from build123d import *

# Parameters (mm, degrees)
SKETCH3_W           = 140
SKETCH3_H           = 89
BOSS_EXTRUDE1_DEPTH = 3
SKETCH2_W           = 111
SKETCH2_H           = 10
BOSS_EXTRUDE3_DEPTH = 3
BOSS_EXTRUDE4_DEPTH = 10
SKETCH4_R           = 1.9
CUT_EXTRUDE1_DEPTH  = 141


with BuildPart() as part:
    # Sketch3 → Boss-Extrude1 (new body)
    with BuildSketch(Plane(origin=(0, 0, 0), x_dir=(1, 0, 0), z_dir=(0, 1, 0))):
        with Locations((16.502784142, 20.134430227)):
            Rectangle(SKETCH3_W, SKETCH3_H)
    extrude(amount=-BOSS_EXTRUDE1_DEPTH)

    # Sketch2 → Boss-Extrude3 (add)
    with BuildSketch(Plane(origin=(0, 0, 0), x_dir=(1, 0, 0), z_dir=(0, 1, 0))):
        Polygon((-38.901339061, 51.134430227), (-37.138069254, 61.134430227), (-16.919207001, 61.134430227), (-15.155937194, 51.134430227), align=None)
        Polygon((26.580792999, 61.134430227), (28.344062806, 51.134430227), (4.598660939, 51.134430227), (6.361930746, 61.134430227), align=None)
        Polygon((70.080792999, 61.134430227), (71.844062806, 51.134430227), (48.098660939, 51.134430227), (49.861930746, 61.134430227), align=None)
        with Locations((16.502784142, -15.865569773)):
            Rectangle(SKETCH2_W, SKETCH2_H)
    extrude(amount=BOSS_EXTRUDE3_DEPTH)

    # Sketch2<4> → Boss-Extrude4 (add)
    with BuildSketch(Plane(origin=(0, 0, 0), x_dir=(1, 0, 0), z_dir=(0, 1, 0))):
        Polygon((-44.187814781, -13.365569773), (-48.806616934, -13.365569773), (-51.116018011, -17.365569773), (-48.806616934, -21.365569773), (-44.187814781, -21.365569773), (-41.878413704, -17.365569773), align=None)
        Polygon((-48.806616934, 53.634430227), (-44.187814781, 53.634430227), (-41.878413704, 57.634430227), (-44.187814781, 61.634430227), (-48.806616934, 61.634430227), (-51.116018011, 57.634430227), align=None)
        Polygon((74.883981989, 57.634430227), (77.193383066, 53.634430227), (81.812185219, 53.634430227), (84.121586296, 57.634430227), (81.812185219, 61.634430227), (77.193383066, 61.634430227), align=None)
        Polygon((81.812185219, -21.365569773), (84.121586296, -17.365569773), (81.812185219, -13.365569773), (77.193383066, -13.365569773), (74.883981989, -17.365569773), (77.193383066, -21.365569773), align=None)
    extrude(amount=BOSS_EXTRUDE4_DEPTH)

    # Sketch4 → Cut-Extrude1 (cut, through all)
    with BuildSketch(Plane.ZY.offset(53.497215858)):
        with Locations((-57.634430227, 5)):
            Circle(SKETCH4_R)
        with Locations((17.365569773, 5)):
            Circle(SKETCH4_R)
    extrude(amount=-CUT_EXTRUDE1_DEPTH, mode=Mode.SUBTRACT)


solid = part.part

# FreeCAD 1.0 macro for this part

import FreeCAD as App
import Part
import Sketcher

V = App.Vector
Q = App.Units.Quantity

doc = App.newDocument("Part")
params = doc.addObject("Spreadsheet::Sheet", "Params")
for row, (alias, value) in enumerate([
    ("sketch1_width", "140 mm"),
    ("sketch1_height", "89 mm"),
    ("pad1_length", "3 mm"),
    ("sketch2_width", "111 mm"),
    ("sketch2_height", "10 mm"),
    ("pad2_length", "3 mm"),
    ("pad3_length", "10 mm"),
    ("sketch4_diameter", "3.8 mm"),
], start=1):
    params.set(f"A{row}", alias)
    params.set(f"B{row}", "=" + value)
    params.setAlias(f"B{row}", alias)

body = doc.addObject("PartDesign::Body", "Body")

# Sketch on XZ plane
sketch1 = body.newObject("Sketcher::SketchObject", "Sketch")
sketch1.AttachmentSupport = (doc.getObject("XZ_Plane"), [""])
sketch1.MapMode = "FlatFace"
sketch1.addGeometry([
    Part.LineSegment(V(-53, -65, 0), V(-53, 24, 0)),
    Part.LineSegment(V(-53, 24, 0), V(87, 24, 0)),
    Part.LineSegment(V(87, 24, 0), V(87, -65, 0)),
    Part.LineSegment(V(87, -65, 0), V(-53, -65, 0)),
], False)
sketch1.addConstraint([
    Sketcher.Constraint("Coincident", 0, 2, 1, 1),
    Sketcher.Constraint("Coincident", 1, 2, 2, 1),
    Sketcher.Constraint("Coincident", 2, 2, 3, 1),
    Sketcher.Constraint("Coincident", 3, 2, 0, 1),
    Sketcher.Constraint("Vertical", 0),
    Sketcher.Constraint("Horizontal", 1),
    Sketcher.Constraint("Vertical", 2),
    Sketcher.Constraint("Horizontal", 3),
    Sketcher.Constraint("DistanceX", 1, 1, 1, 2, Q("140 mm")),
    Sketcher.Constraint("DistanceY", 0, 1, 0, 2, Q("89 mm")),
    Sketcher.Constraint("DistanceY", -1, 1, 0, 2, Q("24.36557 mm")),
    Sketcher.Constraint("DistanceX", 0, 2, -1, 1, Q("53.497216 mm")),
])
sketch1.setExpression("Constraints[8]", "Params.sketch1_width")
sketch1.setExpression("Constraints[9]", "Params.sketch1_height")
pad1 = body.newObject("PartDesign::Pad", "Pad")
pad1.Profile = sketch1
pad1.setExpression("Length", "Params.pad1_length")

# Sketch on XZ plane
sketch2 = body.newObject("Sketcher::SketchObject", "Sketch001")
sketch2.AttachmentSupport = (doc.getObject("XZ_Plane"), [""])
sketch2.MapMode = "FlatFace"
sketch2.addGeometry([
    Part.LineSegment(V(-37, -61, 0), V(-39, -51, 0)),  # 0
    Part.LineSegment(V(-39, -51, 0), V(-15, -51, 0)),  # 1
    Part.LineSegment(V(-15, -51, 0), V(-17, -61, 0)),  # 2
    Part.LineSegment(V(-17, -61, 0), V(-37, -61, 0)),  # 3
    Part.LineSegment(V(28, -51, 0), V(27, -61, 0)),  # 4
    Part.LineSegment(V(27, -61, 0), V(6, -61, 0)),  # 5
    Part.LineSegment(V(6, -61, 0), V(5, -51, 0)),  # 6
    Part.LineSegment(V(5, -51, 0), V(28, -51, 0)),  # 7
    Part.LineSegment(V(72, -51, 0), V(70, -61, 0)),  # 8
    Part.LineSegment(V(70, -61, 0), V(50, -61, 0)),  # 9
    Part.LineSegment(V(50, -61, 0), V(48, -51, 0)),  # 10
    Part.LineSegment(V(48, -51, 0), V(72, -51, 0)),  # 11
    Part.LineSegment(V(-39, 11, 0), V(-39, 21, 0)),  # 12
    Part.LineSegment(V(-39, 21, 0), V(72, 21, 0)),  # 13
    Part.LineSegment(V(72, 21, 0), V(72, 11, 0)),  # 14
    Part.LineSegment(V(72, 11, 0), V(-39, 11, 0)),  # 15
], False)
sketch2.addConstraint([
    Sketcher.Constraint("Coincident", 0, 2, 1, 1),
    Sketcher.Constraint("Coincident", 1, 2, 2, 1),
    Sketcher.Constraint("Coincident", 2, 2, 3, 1),
    Sketcher.Constraint("Coincident", 3, 2, 0, 1),
    Sketcher.Constraint("Coincident", 4, 2, 5, 1),
    Sketcher.Constraint("Coincident", 5, 2, 6, 1),
    Sketcher.Constraint("Coincident", 6, 2, 7, 1),
    Sketcher.Constraint("Coincident", 7, 2, 4, 1),
    Sketcher.Constraint("Coincident", 8, 2, 9, 1),
    Sketcher.Constraint("Coincident", 9, 2, 10, 1),
    Sketcher.Constraint("Coincident", 10, 2, 11, 1),
    Sketcher.Constraint("Coincident", 11, 2, 8, 1),
    Sketcher.Constraint("Coincident", 12, 2, 13, 1),
    Sketcher.Constraint("Coincident", 13, 2, 14, 1),
    Sketcher.Constraint("Coincident", 14, 2, 15, 1),
    Sketcher.Constraint("Coincident", 15, 2, 12, 1),
    Sketcher.Constraint("Horizontal", 1),
    Sketcher.Constraint("Horizontal", 3),
    Sketcher.Constraint("Horizontal", 5),
    Sketcher.Constraint("Horizontal", 7),
    Sketcher.Constraint("Horizontal", 9),
    Sketcher.Constraint("Horizontal", 11),
    Sketcher.Constraint("Vertical", 12),
    Sketcher.Constraint("Horizontal", 13),
    Sketcher.Constraint("Vertical", 14),
    Sketcher.Constraint("Horizontal", 15),
    Sketcher.Constraint("Parallel", 2, 4),
    Sketcher.Constraint("Parallel", 0, 6),
    Sketcher.Constraint("Parallel", 4, 8),
    Sketcher.Constraint("Parallel", 6, 10),
    Sketcher.Constraint("Horizontal", 3, 2, 4, 2),
    Sketcher.Constraint("Horizontal", 1, 2, 6, 2),
    Sketcher.Constraint("Horizontal", 5, 2, 8, 2),
    Sketcher.Constraint("Horizontal", 7, 2, 10, 2),
    Sketcher.Constraint("Equal", 3, 5),
    Sketcher.Constraint("Equal", 5, 9),
    Sketcher.Constraint("Equal", 0, 2),
    Sketcher.Constraint("DistanceX", 13, 1, 13, 2, Q("111 mm")),
    Sketcher.Constraint("DistanceY", 12, 1, 12, 2, Q("10 mm")),
    Sketcher.Constraint("Angle", 0, Q("100 deg")),
    Sketcher.Constraint("DistanceY", 2, 2, 1, 2, Q("10 mm")),
    Sketcher.Constraint("DistanceY", 0, 2, 12, 2, Q("72 mm")),
    Sketcher.Constraint("DistanceX", 2, 2, 4, 2, Q("43.5 mm")),
    Sketcher.Constraint("DistanceX", 4, 2, 8, 2, Q("43.5 mm")),
    Sketcher.Constraint("DistanceX", 1, 1, 1, 2, Q("23.745402 mm")),
    Sketcher.Constraint("DistanceX", 0, 2, -1, 1, Q("38.901339 mm")),
    Sketcher.Constraint("DistanceY", 0, 2, -1, 1, Q("51.13443 mm")),
    Sketcher.Constraint("DistanceX", 12, 2, 1, 2, Q("23.841279 mm")),
])
sketch2.setExpression("Constraints[37]", "Params.sketch2_width")
sketch2.setExpression("Constraints[38]", "Params.sketch2_height")
pad2 = body.newObject("PartDesign::Pad", "Pad001")
pad2.Profile = sketch2
pad2.setExpression("Length", "Params.pad2_length")
pad2.Reversed = True

# Sketch on XZ plane
sketch3 = body.newObject("Sketcher::SketchObject", "Sketch002")
sketch3.AttachmentSupport = (doc.getObject("XZ_Plane"), [""])
sketch3.MapMode = "FlatFace"
sketch3.addGeometry([
    Part.LineSegment(V(-44.2, 13.4, 0), V(-48.8, 13.4, 0)),  # 0
    Part.LineSegment(V(-48.8, 13.4, 0), V(-51.1, 17.4, 0)),  # 1
    Part.LineSegment(V(-51.1, 17.4, 0), V(-48.8, 21.4, 0)),  # 2
    Part.LineSegment(V(-48.8, 21.4, 0), V(-44.2, 21.4, 0)),  # 3
    Part.LineSegment(V(-44.2, 21.4, 0), V(-41.9, 17.4, 0)),  # 4
    Part.LineSegment(V(-41.9, 17.4, 0), V(-44.2, 13.4, 0)),  # 5
    Part.LineSegment(V(-48.8, -53.6, 0), V(-44.2, -53.6, 0)),  # 6
    Part.LineSegment(V(-44.2, -53.6, 0), V(-41.9, -57.6, 0)),  # 7
    Part.LineSegment(V(-41.9, -57.6, 0), V(-44.2, -61.6, 0)),  # 8
    Part.LineSegment(V(-44.2, -61.6, 0), V(-48.8, -61.6, 0)),  # 9
    Part.LineSegment(V(-48.8, -61.6, 0), V(-51.1, -57.6, 0)),  # 10
    Part.LineSegment(V(-51.1, -57.6, 0), V(-48.8, -53.6, 0)),  # 11
    Part.LineSegment(V(74.9, -57.6, 0), V(77.2, -53.6, 0)),  # 12
    Part.LineSegment(V(77.2, -53.6, 0), V(81.8, -53.6, 0)),  # 13
    Part.LineSegment(V(81.8, -53.6, 0), V(84.1, -57.6, 0)),  # 14
    Part.LineSegment(V(84.1, -57.6, 0), V(81.8, -61.6, 0)),  # 15
    Part.LineSegment(V(81.8, -61.6, 0), V(77.2, -61.6, 0)),  # 16
    Part.LineSegment(V(77.2, -61.6, 0), V(74.9, -57.6, 0)),  # 17
    Part.LineSegment(V(81.8, 21.4, 0), V(84.1, 17.4, 0)),  # 18
    Part.LineSegment(V(84.1, 17.4, 0), V(81.8, 13.4, 0)),  # 19
    Part.LineSegment(V(81.8, 13.4, 0), V(77.2, 13.4, 0)),  # 20
    Part.LineSegment(V(77.2, 13.4, 0), V(74.9, 17.4, 0)),  # 21
    Part.LineSegment(V(74.9, 17.4, 0), V(77.2, 21.4, 0)),  # 22
    Part.LineSegment(V(77.2, 21.4, 0), V(81.8, 21.4, 0)),  # 23
], False)
sketch3.addConstraint([
    Sketcher.Constraint("Coincident", 0, 2, 1, 1),
    Sketcher.Constraint("Coincident", 1, 2, 2, 1),
    Sketcher.Constraint("Coincident", 2, 2, 3, 1),
    Sketcher.Constraint("Coincident", 3, 2, 4, 1),
    Sketcher.Constraint("Coincident", 4, 2, 5, 1),
    Sketcher.Constraint("Coincident", 5, 2, 0, 1),
    Sketcher.Constraint("Coincident", 6, 2, 7, 1),
    Sketcher.Constraint("Coincident", 7, 2, 8, 1),
    Sketcher.Constraint("Coincident", 8, 2, 9, 1),
    Sketcher.Constraint("Coincident", 9, 2, 10, 1),
    Sketcher.Constraint("Coincident", 10, 2, 11, 1),
    Sketcher.Constraint("Coincident", 11, 2, 6, 1),
    Sketcher.Constraint("Coincident", 12, 2, 13, 1),
    Sketcher.Constraint("Coincident", 13, 2, 14, 1),
    Sketcher.Constraint("Coincident", 14, 2, 15, 1),
    Sketcher.Constraint("Coincident", 15, 2, 16, 1),
    Sketcher.Constraint("Coincident", 16, 2, 17, 1),
    Sketcher.Constraint("Coincident", 17, 2, 12, 1),
    Sketcher.Constraint("Coincident", 18, 2, 19, 1),
    Sketcher.Constraint("Coincident", 19, 2, 20, 1),
    Sketcher.Constraint("Coincident", 20, 2, 21, 1),
    Sketcher.Constraint("Coincident", 21, 2, 22, 1),
    Sketcher.Constraint("Coincident", 22, 2, 23, 1),
    Sketcher.Constraint("Coincident", 23, 2, 18, 1),
    Sketcher.Constraint("Horizontal", 0),
    Sketcher.Constraint("Horizontal", 3),
    Sketcher.Constraint("Horizontal", 6),
    Sketcher.Constraint("Horizontal", 9),
    Sketcher.Constraint("Horizontal", 13),
    Sketcher.Constraint("Horizontal", 16),
    Sketcher.Constraint("Horizontal", 20),
    Sketcher.Constraint("Horizontal", 23),
    Sketcher.Constraint("Parallel", 1, 4),
    Sketcher.Constraint("Parallel", 2, 5),
    Sketcher.Constraint("Parallel", 4, 7),
    Sketcher.Constraint("Parallel", 5, 8),
    Sketcher.Constraint("Parallel", 7, 10),
    Sketcher.Constraint("Parallel", 8, 11),
    Sketcher.Constraint("Parallel", 11, 12),
    Sketcher.Constraint("Parallel", 10, 14),
    Sketcher.Constraint("Parallel", 12, 15),
    Sketcher.Constraint("Parallel", 14, 17),
    Sketcher.Constraint("Parallel", 17, 18),
    Sketcher.Constraint("Parallel", 15, 19),
    Sketcher.Constraint("Parallel", 18, 21),
    Sketcher.Constraint("Parallel", 19, 22),
    Sketcher.Constraint("Horizontal", 1, 2, 4, 2),
    Sketcher.Constraint("Horizontal", 7, 2, 10, 2),
    Sketcher.Constraint("Horizontal", 11, 2, 12, 2),
    Sketcher.Constraint("Horizontal", 10, 2, 14, 2),
    Sketcher.Constraint("Horizontal", 9, 2, 15, 2),
    Sketcher.Constraint("Horizontal", 14, 2, 17, 2),
    Sketcher.Constraint("Horizontal", 4, 2, 18, 2),
    Sketcher.Constraint("Horizontal", 5, 2, 19, 2),
    Sketcher.Constraint("Horizontal", 18, 2, 21, 2),
    Sketcher.Constraint("Horizontal", 3, 2, 22, 2),
    Sketcher.Constraint("Vertical", 0, 2, 2, 2),
    Sketcher.Constraint("Vertical", 3, 2, 5, 2),
    Sketcher.Constraint("Vertical", 5, 2, 6, 2),
    Sketcher.Constraint("Vertical", 4, 2, 7, 2),
    Sketcher.Constraint("Vertical", 6, 2, 8, 2),
    Sketcher.Constraint("Vertical", 2, 2, 9, 2),
    Sketcher.Constraint("Vertical", 14, 2, 18, 2),
    Sketcher.Constraint("Vertical", 16, 2, 20, 2),
    Sketcher.Constraint("Equal", 9, 13),
    Sketcher.Constraint("Angle", 1, Q("120 deg")),
    Sketcher.Constraint("DistanceY", 0, 2, 1, 2, Q("4 mm")),
    Sketcher.Constraint("DistanceY", 6, 2, 5, 2, Q("67 mm")),
    Sketcher.Constraint("DistanceX", 11, 2, 12, 2, Q("126 mm")),
    Sketcher.Constraint("DistanceX", 0, 2, 0, 1, Q("4.618802 mm")),
    Sketcher.Constraint("DistanceY", -1, 1, 0, 2, Q("13.36557 mm")),
    Sketcher.Constraint("DistanceX", 1, 2, -1, 1, Q("51.116018 mm")),
])
pad3 = body.newObject("PartDesign::Pad", "Pad002")
pad3.Profile = sketch3
pad3.setExpression("Length", "Params.pad3_length")
pad3.Reversed = True

# Sketch on YZ plane
sketch4 = body.newObject("Sketcher::SketchObject", "Sketch003")
sketch4.AttachmentSupport = (doc.getObject("YZ_Plane"), [""])
sketch4.MapMode = "FlatFace"
sketch4.AttachmentOffset = App.Placement(V(0, 0, -53.497216), App.Rotation())
sketch4.addGeometry([
    Part.Circle(V(5, -57.6, 0), V(0, 0, 1), 1.9),
    Part.Circle(V(5, 17.4, 0), V(0, 0, 1), 1.9),
], False)
sketch4.addConstraint([
    Sketcher.Constraint("Equal", 0, 1),
    Sketcher.Constraint("Vertical", 0, 3, 1, 3),
    Sketcher.Constraint("Diameter", 0, Q("3.8 mm")),
    Sketcher.Constraint("DistanceX", -1, 1, 0, 3, Q("5 mm")),
    Sketcher.Constraint("DistanceY", 0, 3, 1, 3, Q("75 mm")),
    Sketcher.Constraint("DistanceY", 0, 3, -1, 1, Q("57.63443 mm")),
])
sketch4.setExpression("Constraints[2]", "Params.sketch4_diameter")
pocket1 = body.newObject("PartDesign::Pocket", "Pocket")
pocket1.Profile = sketch4
pocket1.Type = "ThroughAll"
pocket1.Reversed = True

doc.recompute()
